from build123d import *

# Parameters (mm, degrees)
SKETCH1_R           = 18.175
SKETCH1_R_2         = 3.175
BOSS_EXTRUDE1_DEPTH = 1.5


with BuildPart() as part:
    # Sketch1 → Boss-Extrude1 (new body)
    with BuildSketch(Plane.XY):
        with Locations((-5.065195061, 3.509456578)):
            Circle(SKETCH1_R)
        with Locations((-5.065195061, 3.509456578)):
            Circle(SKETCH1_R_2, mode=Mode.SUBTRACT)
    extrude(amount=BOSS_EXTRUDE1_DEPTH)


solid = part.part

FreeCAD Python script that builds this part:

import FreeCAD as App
import Part
import Sketcher

V = App.Vector

doc = App.newDocument("Part")
body = doc.addObject("PartDesign::Body", "Body")

# Sketch on XY plane
sketch1 = body.newObject("Sketcher::SketchObject", "Sketch")
sketch1.AttachmentSupport = (doc.getObject("XY_Plane"), [""])
sketch1.MapMode = "FlatFace"
sketch1.addGeometry([
    Part.Circle(V(-5.1, 3.5, 0), V(0, 0, 1), 18.2),
    Part.Circle(V(-5.1, 3.5, 0), V(0, 0, 1), 3.2),
], False)
sketch1.addConstraint([
    Sketcher.Constraint("Coincident", 1, 3, 0, 3),
    Sketcher.Constraint("Diameter", 0, 36.35),
    Sketcher.Constraint("Diameter", 1, 6.35),
    Sketcher.Constraint("DistanceX", 0, 3, -1, 1, 5.065195),
    Sketcher.Constraint("DistanceY", -1, 1, 0, 3, 3.509457),
])
pad1 = body.newObject("PartDesign::Pad", "Pad")
pad1.Profile = sketch1
pad1.Length = 1.5

doc.recompute()
